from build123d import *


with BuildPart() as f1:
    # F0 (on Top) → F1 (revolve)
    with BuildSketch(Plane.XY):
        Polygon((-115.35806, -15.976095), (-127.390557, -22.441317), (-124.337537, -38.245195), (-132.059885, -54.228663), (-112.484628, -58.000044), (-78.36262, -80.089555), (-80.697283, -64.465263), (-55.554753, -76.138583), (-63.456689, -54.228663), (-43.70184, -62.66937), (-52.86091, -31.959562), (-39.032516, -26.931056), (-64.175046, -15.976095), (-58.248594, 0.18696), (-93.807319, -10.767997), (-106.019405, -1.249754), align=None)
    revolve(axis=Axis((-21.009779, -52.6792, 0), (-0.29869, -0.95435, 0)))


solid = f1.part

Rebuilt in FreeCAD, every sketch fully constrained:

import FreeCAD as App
import Part
import Sketcher
from FreeCAD import Vector
Q = App.Units.Quantity


def add_polygon(sketch, points):
    """Adds a closed chain of lines whose ends are joined by coincident constraints."""
    first, n = sketch.GeometryCount, len(points)
    for a, b in zip(points, points[1:] + points[:1]):
        sketch.addGeometry(Part.LineSegment(App.Vector(*a, 0), App.Vector(*b, 0)), False)
    for i in range(n):
        sketch.addConstraint(Sketcher.Constraint("Coincident", first + i, 2, first + (i + 1) % n, 1))

doc = App.newDocument("Part")
body = doc.addObject("PartDesign::Body", "Body")

# Sketch on XY plane
sketch1 = body.newObject("Sketcher::SketchObject", "Sketch")
sketch1.AttachmentSupport = (doc.getObject("XY_Plane"), [""])
sketch1.MapMode = "FlatFace"
add_polygon(sketch1, [(-115, -16), (-127, -22), (-124, -38), (-132, -54), (-112, -58), (-78, -80), (-81, -64), (-56, -76), (-63, -54), (-44, -63), (-53, -32), (-39, -27), (-64, -16), (-58, 0), (-94, -11), (-106, -1)])  # lines 0-15
sketch1.addGeometry(Part.LineSegment(Vector(-9, -15, 0), Vector(-34, -94, 0)), True)  # axis
sketch1.addConstraint([
    Sketcher.Constraint("Horizontal", 2, 2, 7, 2),
    Sketcher.Constraint("Horizontal", 11, 2, 15, 2),
    Sketcher.Constraint("Distance", 11, Q("27.425499 mm")),
    Sketcher.Constraint("DistanceY", 5, 2, 2, 2, Q("10.2366 mm")),
    Sketcher.Constraint("DistanceY", 7, 2, 9, 2, Q("22.269101 mm")),
    Sketcher.Constraint("DistanceY", 11, 2, 13, 2, Q("5.208098 mm")),
    Sketcher.Constraint("DistanceY", 1, 2, 13, 2, Q("27.477198 mm")),
    Sketcher.Constraint("DistanceX", 9, 2, 16, 1, Q("43.5986 mm")),
    Sketcher.Constraint("DistanceY", 16, 1, 12, 2, Q("15.331601 mm")),
    Sketcher.Constraint("Distance", 0, Q("13.659432 mm")),
    Sketcher.Constraint("Distance", 1, Q("16.096071 mm")),
    Sketcher.Constraint("Distance", 7, Q("23.291311 mm")),
    Sketcher.Constraint("Distance", 8, Q("21.482542 mm")),
    Sketcher.Constraint("Distance", 10, Q("14.714291 mm")),
    Sketcher.Constraint("Distance", 12, Q("17.215318 mm")),
    Sketcher.Constraint("Distance", 14, Q("15.483281 mm")),
    Sketcher.Constraint("DistanceX", 3, 2, -1, 1, Q("112.484628 mm")),
    Sketcher.Constraint("DistanceX", 4, 2, -1, 1, Q("78.36262 mm")),
    Sketcher.Constraint("DistanceX", 7, 2, -1, 1, Q("63.456689 mm")),
    Sketcher.Constraint("DistanceX", 8, 2, -1, 1, Q("43.70184 mm")),
    Sketcher.Constraint("DistanceY", 8, 2, -1, 1, Q("62.66937 mm")),
    Sketcher.Constraint("DistanceX", 9, 2, -1, 1, Q("52.86091 mm")),
    Sketcher.Constraint("DistanceY", -1, 1, 12, 2, Q("0.18696 mm")),
    Sketcher.Constraint("DistanceX", 13, 2, -1, 1, Q("93.807319 mm")),
    Sketcher.Constraint("DistanceX", 15, 2, -1, 1, Q("115.35806 mm")),
    Sketcher.Constraint("DistanceX", 16, 2, -1, 1, Q("33.940012 mm")),
    Sketcher.Constraint("DistanceY", 16, 2, -1, 1, Q("93.992828 mm")),
    Sketcher.Constraint("DistanceX", 0, 2, 1, 2, Q("3.05302 mm")),
    Sketcher.Constraint("DistanceX", 2, 2, 1, 2, Q("7.722348 mm")),
    Sketcher.Constraint("DistanceY", 3, 2, 2, 2, Q("3.771381 mm")),
    Sketcher.Constraint("DistanceY", 3, 2, 1, 2, Q("19.754849 mm")),
    Sketcher.Constraint("DistanceY", 4, 2, 3, 2, Q("22.089511 mm")),
    Sketcher.Constraint("DistanceX", 5, 2, 6, 2, Q("25.14253 mm")),
    Sketcher.Constraint("DistanceY", 6, 2, 5, 2, Q("11.67332 mm")),
    Sketcher.Constraint("DistanceX", 11, 2, 10, 2, Q("25.14253 mm")),
    Sketcher.Constraint("DistanceX", 0, 2, 14, 2, Q("21.371152 mm")),
])
revolution = body.newObject("PartDesign::Revolution", "Revolution")
revolution.Profile = sketch1
revolution.ReferenceAxis = (sketch1, ["Axis0"])
revolution.Angle = 360

doc.recompute()
